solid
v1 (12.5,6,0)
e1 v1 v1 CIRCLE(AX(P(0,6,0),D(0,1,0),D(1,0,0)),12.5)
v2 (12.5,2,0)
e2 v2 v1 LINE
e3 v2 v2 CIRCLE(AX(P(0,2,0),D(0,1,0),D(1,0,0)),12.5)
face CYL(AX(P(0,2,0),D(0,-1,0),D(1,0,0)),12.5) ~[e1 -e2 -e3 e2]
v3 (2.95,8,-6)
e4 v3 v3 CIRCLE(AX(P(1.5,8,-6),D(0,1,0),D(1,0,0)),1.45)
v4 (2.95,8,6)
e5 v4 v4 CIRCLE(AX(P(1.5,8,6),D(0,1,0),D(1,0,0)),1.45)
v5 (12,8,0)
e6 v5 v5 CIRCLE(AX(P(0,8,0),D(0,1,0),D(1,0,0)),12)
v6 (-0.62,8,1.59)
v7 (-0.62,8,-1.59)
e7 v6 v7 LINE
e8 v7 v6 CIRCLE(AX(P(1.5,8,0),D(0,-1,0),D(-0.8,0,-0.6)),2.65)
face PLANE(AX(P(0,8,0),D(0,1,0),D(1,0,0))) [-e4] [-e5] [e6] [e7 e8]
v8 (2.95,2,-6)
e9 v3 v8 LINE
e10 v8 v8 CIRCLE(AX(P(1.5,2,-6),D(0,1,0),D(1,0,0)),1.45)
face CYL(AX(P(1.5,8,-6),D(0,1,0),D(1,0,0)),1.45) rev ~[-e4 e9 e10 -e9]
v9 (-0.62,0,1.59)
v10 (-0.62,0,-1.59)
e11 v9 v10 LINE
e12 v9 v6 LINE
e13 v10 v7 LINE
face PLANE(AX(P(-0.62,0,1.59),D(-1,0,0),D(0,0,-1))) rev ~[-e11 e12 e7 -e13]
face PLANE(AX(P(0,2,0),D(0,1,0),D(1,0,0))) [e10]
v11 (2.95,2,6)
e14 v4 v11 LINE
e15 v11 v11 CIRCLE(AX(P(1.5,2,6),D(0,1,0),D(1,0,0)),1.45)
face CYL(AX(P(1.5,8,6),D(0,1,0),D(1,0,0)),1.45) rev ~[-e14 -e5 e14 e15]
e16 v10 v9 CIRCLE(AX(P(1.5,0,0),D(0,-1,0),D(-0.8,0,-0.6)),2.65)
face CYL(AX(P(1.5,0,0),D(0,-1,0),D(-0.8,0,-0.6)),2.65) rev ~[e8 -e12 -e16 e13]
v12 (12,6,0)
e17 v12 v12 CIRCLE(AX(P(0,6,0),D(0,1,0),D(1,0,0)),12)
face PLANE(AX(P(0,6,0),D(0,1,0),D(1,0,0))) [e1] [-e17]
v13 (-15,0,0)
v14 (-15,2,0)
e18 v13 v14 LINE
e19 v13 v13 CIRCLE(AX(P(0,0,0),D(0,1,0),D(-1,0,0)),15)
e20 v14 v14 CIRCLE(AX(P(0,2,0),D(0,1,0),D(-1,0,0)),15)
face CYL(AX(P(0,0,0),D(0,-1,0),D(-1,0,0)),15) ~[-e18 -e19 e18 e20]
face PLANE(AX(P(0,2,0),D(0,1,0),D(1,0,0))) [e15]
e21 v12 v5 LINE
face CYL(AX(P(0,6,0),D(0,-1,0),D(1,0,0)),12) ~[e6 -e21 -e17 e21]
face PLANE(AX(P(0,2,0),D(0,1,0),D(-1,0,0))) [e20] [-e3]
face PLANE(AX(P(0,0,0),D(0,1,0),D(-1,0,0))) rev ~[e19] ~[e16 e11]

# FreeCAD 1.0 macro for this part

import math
import FreeCAD as App
import Part
import Sketcher
from FreeCAD import Vector
Q = App.Units.Quantity

doc = App.newDocument("Part")
body = doc.addObject("PartDesign::Body", "Body")

sketch1 = body.newObject("Sketcher::SketchObject", "Sketch")
sketch1.AttachmentSupport = (doc.getObject("XZ_Plane"), [""])
sketch1.MapMode = "FlatFace"
sketch1.addGeometry(Part.Circle(Vector(0, 0, 0), Vector(0, 0, 1), 15), False)
sketch1.addConstraint([
    Sketcher.Constraint("Coincident", 0, 3, -1, 1),
    Sketcher.Constraint("Diameter", 0, Q("30 mm")),
])
pad1 = body.newObject("PartDesign::Pad", "Pad")
pad1.Profile = sketch1
pad1.Length = 2
pad1.Reversed = True

sketch2 = body.newObject("Sketcher::SketchObject", "Sketch001")
sketch2.AttachmentSupport = (doc.getObject("XZ_Plane"), [""])
sketch2.MapMode = "FlatFace"
sketch2.AttachmentOffset = App.Placement(Vector(0, 0, -2), App.Rotation())
sketch2.addGeometry(Part.Circle(Vector(0, 0, 0), Vector(0, 0, 1), 12), False)
sketch2.addConstraint([
    Sketcher.Constraint("Coincident", 0, 3, -1, 1),
    Sketcher.Constraint("Diameter", 0, Q("25 mm")),
])
pad2 = body.newObject("PartDesign::Pad", "Pad001")
pad2.Profile = sketch2
pad2.Length = 4
pad2.Reversed = True

sketch3 = body.newObject("Sketcher::SketchObject", "Sketch002")
sketch3.AttachmentSupport = (doc.getObject("XZ_Plane"), [""])
sketch3.MapMode = "FlatFace"
sketch3.AttachmentOffset = App.Placement(Vector(0, 0, -6), App.Rotation())
sketch3.addGeometry(Part.Circle(Vector(0, 0, 0), Vector(0, 0, 1), 12), False)
sketch3.addConstraint([
    Sketcher.Constraint("Coincident", 0, 3, -1, 1),
    Sketcher.Constraint("Diameter", 0, Q("24 mm")),
])
pad3 = body.newObject("PartDesign::Pad", "Pad002")
pad3.Profile = sketch3
pad3.Length = 2
pad3.Reversed = True

sketch4 = body.newObject("Sketcher::SketchObject", "Sketch003")
sketch4.AttachmentSupport = (doc.getObject("XZ_Plane"), [""])
sketch4.MapMode = "FlatFace"
sketch4.AttachmentOffset = App.Placement(Vector(0, 0, -8), App.Rotation())
sketch4.addGeometry([
    Part.Circle(Vector(1.5, 6, 0), Vector(0, 0, 1), 1.4),
    Part.Circle(Vector(1.5, -6, 0), Vector(0, 0, 1), 1.4),
], False)
sketch4.addConstraint([
    Sketcher.Constraint("Equal", 0, 1),
    Sketcher.Constraint("Symmetric", 0, 3, 1, 3, -1),
    Sketcher.Constraint("Diameter", 0, Q("2.9 mm")),
    Sketcher.Constraint("DistanceY", -1, 1, 0, 3, Q("6 mm")),
    Sketcher.Constraint("DistanceX", -1, 1, 0, 3, Q("1.5 mm")),
])
pocket1 = body.newObject("PartDesign::Pocket", "Pocket")
pocket1.Profile = sketch4
pocket1.Length = 6
pocket1.Reversed = True

sketch5 = body.newObject("Sketcher::SketchObject", "Sketch004")
sketch5.AttachmentSupport = (doc.getObject("XZ_Plane"), [""])
sketch5.MapMode = "FlatFace"
sketch5.addGeometry([
    Part.LineSegment(Vector(-0.6, 1.6, 0), Vector(-0.6, -1.6, 0)),
    Part.ArcOfCircle(Part.Circle(Vector(1.5, 0, 0), Vector(0, 0, 1), 2.7), math.radians(-143), math.radians(143)),
], False)
sketch5.addConstraint([
    Sketcher.Constraint("Coincident", 0, 1, 1, 2),
    Sketcher.Constraint("Coincident", 1, 1, 0, 2),
    Sketcher.Constraint("Vertical", 0),
    Sketcher.Constraint("PointOnObject", 1, 3, -1),
    Sketcher.Constraint("Radius", 1, Q("2.65 mm")),
    Sketcher.Constraint("DistanceY", 0, 2, 0, 1, Q("3.18 mm")),
    Sketcher.Constraint("DistanceX", -1, 1, 1, 3, Q("1.5 mm")),
])
pocket2 = body.newObject("PartDesign::Pocket", "Pocket001")
pocket2.Profile = sketch5
pocket2.Length = 8

doc.recompute()
